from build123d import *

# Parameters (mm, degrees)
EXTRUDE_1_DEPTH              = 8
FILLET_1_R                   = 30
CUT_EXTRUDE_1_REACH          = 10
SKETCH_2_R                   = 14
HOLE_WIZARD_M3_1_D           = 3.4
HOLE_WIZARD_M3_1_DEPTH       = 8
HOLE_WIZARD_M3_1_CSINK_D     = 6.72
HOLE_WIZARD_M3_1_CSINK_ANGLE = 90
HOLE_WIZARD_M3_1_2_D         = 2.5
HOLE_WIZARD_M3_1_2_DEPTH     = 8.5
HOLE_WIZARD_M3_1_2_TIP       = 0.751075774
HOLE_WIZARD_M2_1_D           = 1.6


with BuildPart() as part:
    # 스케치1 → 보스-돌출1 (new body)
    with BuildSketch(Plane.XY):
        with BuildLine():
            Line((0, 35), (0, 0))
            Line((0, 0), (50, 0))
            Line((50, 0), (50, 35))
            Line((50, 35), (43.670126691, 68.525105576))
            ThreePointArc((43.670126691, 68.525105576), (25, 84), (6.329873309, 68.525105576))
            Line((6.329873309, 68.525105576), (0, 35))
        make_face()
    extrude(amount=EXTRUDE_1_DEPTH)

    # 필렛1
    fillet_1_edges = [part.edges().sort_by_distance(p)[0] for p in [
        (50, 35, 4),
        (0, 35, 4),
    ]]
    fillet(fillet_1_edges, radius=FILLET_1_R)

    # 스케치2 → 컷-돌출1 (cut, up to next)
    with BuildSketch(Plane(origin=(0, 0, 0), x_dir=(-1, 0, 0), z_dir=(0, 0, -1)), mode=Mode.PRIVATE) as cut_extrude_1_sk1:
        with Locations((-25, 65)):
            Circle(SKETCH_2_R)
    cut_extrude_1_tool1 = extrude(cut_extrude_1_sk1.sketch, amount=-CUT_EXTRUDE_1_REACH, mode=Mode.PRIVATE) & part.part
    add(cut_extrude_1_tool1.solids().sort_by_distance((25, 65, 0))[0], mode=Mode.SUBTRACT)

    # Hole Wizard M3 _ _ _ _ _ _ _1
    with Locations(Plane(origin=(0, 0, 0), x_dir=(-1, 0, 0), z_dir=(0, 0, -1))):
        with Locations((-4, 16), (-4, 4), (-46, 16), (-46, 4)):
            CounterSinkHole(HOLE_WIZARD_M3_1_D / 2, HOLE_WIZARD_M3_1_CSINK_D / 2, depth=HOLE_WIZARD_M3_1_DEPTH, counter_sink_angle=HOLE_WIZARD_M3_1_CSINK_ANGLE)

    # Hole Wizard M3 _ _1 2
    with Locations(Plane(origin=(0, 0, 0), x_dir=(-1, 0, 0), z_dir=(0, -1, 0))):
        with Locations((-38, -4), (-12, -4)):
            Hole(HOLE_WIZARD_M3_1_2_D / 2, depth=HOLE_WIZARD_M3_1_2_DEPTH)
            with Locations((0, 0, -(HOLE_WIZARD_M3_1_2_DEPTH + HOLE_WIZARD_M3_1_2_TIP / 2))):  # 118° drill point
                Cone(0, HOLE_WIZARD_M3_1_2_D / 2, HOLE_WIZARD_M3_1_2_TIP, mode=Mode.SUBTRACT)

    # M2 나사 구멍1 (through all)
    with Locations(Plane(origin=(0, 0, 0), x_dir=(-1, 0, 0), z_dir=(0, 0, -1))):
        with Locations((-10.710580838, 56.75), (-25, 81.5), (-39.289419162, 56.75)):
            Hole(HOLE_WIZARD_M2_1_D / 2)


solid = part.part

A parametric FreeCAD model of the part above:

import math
import FreeCAD as App
import Part
import Sketcher


def edges_at(feature, points):
    """Names of the edges that pass closest to the given points."""
    edges = feature.Shape.Edges
    near = lambda p: min(range(len(edges)), key=lambda i: edges[i].distToShape(Part.Vertex(*p))[0])
    return sorted({f"Edge{near(p) + 1}" for p in points})

doc = App.newDocument("Part")
body = doc.addObject("PartDesign::Body", "Body")

# Sketch on XY plane
sketch1 = body.newObject("Sketcher::SketchObject", "Sketch")
sketch1.AttachmentSupport = (doc.getObject("XY_Plane"), [""])
sketch1.MapMode = "FlatFace"
sketch1.addGeometry([
    Part.LineSegment(App.Vector(0, 35, 0), App.Vector(0, 0, 0)),  # 0
    Part.LineSegment(App.Vector(0, 0, 0), App.Vector(50, 0, 0)),  # 1
    Part.LineSegment(App.Vector(50, 0, 0), App.Vector(50, 35, 0)),  # 2
    Part.LineSegment(App.Vector(50, 35, 0), App.Vector(44, 69, 0)),  # 3
    Part.ArcOfCircle(Part.Circle(App.Vector(25, 65, 0), App.Vector(0, 0, 1), 19), math.radians(11), math.radians(169)),  # 4
    Part.LineSegment(App.Vector(6, 69, 0), App.Vector(0, 35, 0)),  # 5
], False)
sketch1.addConstraint([
    Sketcher.Constraint("Coincident", 0, 2, 1, 1),
    Sketcher.Constraint("Coincident", 1, 2, 2, 1),
    Sketcher.Constraint("Coincident", 2, 2, 3, 1),
    Sketcher.Constraint("Tangent", 3, 2, 4, 1),
    Sketcher.Constraint("Tangent", 4, 2, 5, 1),
    Sketcher.Constraint("Coincident", 5, 2, 0, 1),
    Sketcher.Constraint("Vertical", 0),
    Sketcher.Constraint("Horizontal", 1),
    Sketcher.Constraint("Vertical", 2),
    Sketcher.Constraint("Coincident", 0, 2, -1, 1),
    Sketcher.Constraint("Horizontal", 3, 2, 4, 2),
    Sketcher.Constraint("Horizontal", 2, 2, 5, 2),
    Sketcher.Constraint("Radius", 4, 19.0),
    Sketcher.Constraint("DistanceX", 1, 1, 1, 2, 50.0),
    Sketcher.Constraint("DistanceY", 0, 2, 0, 1, 35.0),
    Sketcher.Constraint("DistanceY", -1, 1, 4, 3, 65.0),
])
pad1 = body.newObject("PartDesign::Pad", "Pad")
pad1.Profile = sketch1
pad1.Length = 8
doc.recompute()

fillet = body.newObject("PartDesign::Fillet", "Fillet")
fillet.Base = (pad1, edges_at(pad1, [(50, 35, 4), (0, 35, 4)]))
fillet.Radius = 30

# Sketch on XY plane
sketch2 = body.newObject("Sketcher::SketchObject", "Sketch001")
sketch2.AttachmentSupport = (doc.getObject("XY_Plane"), [""])
sketch2.MapMode = "FlatFace"
sketch2.addGeometry(Part.Circle(App.Vector(25, 65, 0), App.Vector(0, 0, 1), 14), False)
sketch2.addConstraint([
    Sketcher.Constraint("Diameter", 0, 28.0),
    Sketcher.Constraint("DistanceX", -1, 1, 0, 3, 25.0),
    Sketcher.Constraint("DistanceY", -1, 1, 0, 3, 65.0),
])
pocket1 = body.newObject("PartDesign::Pocket", "Pocket")
pocket1.Profile = sketch2
pocket1.Type = "UpToFirst"
pocket1.Reversed = True

# Sketch on XY plane
sketch3 = body.newObject("Sketcher::SketchObject", "Sketch002")
sketch3.AttachmentSupport = (doc.getObject("XY_Plane"), [""])
sketch3.MapMode = "FlatFace"
sketch3.addGeometry([
    Part.Circle(App.Vector(4, 16, 0), App.Vector(0, 0, 1), 1.7),
    Part.Circle(App.Vector(4, 4, 0), App.Vector(0, 0, 1), 1.7),
    Part.Circle(App.Vector(46, 16, 0), App.Vector(0, 0, 1), 1.7),
    Part.Circle(App.Vector(46, 4, 0), App.Vector(0, 0, 1), 1.7),
], False)
sketch3.addConstraint([
    Sketcher.Constraint("Equal", 0, 1),
    Sketcher.Constraint("Equal", 1, 2),
    Sketcher.Constraint("Equal", 2, 3),
    Sketcher.Constraint("Horizontal", 0, 3, 2, 3),
    Sketcher.Constraint("Horizontal", 1, 3, 3, 3),
    Sketcher.Constraint("Vertical", 0, 3, 1, 3),
    Sketcher.Constraint("Vertical", 2, 3, 3, 3),
    Sketcher.Constraint("Diameter", 0, 3.4),
    Sketcher.Constraint("DistanceX", -1, 1, 0, 3, 4.0),
    Sketcher.Constraint("DistanceY", -1, 1, 0, 3, 16.0),
    Sketcher.Constraint("DistanceY", -1, 1, 1, 3, 4.0),
    Sketcher.Constraint("DistanceX", -1, 1, 2, 3, 46.0),
])
doc.recompute()
hole = body.newObject("PartDesign::Hole", "Hole")
hole.Profile = sketch3
hole.ThreadType = "None"
hole.Diameter = 3.4
hole.DepthType = "Dimension"
hole.Depth = 8
hole.DrillPoint = "Flat"
hole.HoleCutType = "Countersink"
hole.HoleCutDiameter = 6.72
hole.HoleCutCountersinkAngle = 90
hole.Reversed = True

# Sketch on XZ plane
sketch4 = body.newObject("Sketcher::SketchObject", "Sketch003")
sketch4.AttachmentSupport = (doc.getObject("XZ_Plane"), [""])
sketch4.MapMode = "FlatFace"
sketch4.addGeometry([
    Part.Circle(App.Vector(38, 4, 0), App.Vector(0, 0, 1), 1.2),
    Part.Circle(App.Vector(12, 4, 0), App.Vector(0, 0, 1), 1.2),
], False)
sketch4.addConstraint([
    Sketcher.Constraint("Equal", 0, 1),
    Sketcher.Constraint("Horizontal", 0, 3, 1, 3),
    Sketcher.Constraint("Diameter", 0, 2.5),
    Sketcher.Constraint("DistanceX", -1, 1, 0, 3, 38.0),
    Sketcher.Constraint("DistanceY", -1, 1, 0, 3, 4.0),
    Sketcher.Constraint("DistanceX", -1, 1, 1, 3, 12.0),
])
doc.recompute()
hole2 = body.newObject("PartDesign::Hole", "Hole001")
hole2.Profile = sketch4
hole2.ThreadType = "None"
hole2.Diameter = 2.5
hole2.DepthType = "Dimension"
hole2.Depth = 8.5
hole2.DrillPoint = "Angled"
hole2.DrillPointAngle = 118

# Sketch on XY plane
sketch5 = body.newObject("Sketcher::SketchObject", "Sketch004")
sketch5.AttachmentSupport = (doc.getObject("XY_Plane"), [""])
sketch5.MapMode = "FlatFace"
sketch5.addGeometry([
    Part.Circle(App.Vector(10.7, 56.8, 0), App.Vector(0, 0, 1), 0.8),
    Part.Circle(App.Vector(25, 81.5, 0), App.Vector(0, 0, 1), 0.8),
    Part.Circle(App.Vector(39.3, 56.8, 0), App.Vector(0, 0, 1), 0.8),
], False)
sketch5.addConstraint([
    Sketcher.Constraint("Equal", 0, 1),
    Sketcher.Constraint("Equal", 1, 2),
    Sketcher.Constraint("Horizontal", 0, 3, 2, 3),
    Sketcher.Constraint("Diameter", 0, 1.6),
    Sketcher.Constraint("DistanceX", -1, 1, 1, 3, 25.0),
    Sketcher.Constraint("DistanceY", -1, 1, 1, 3, 81.5),
    Sketcher.Constraint("DistanceY", -1, 1, 0, 3, 56.75),
    Sketcher.Constraint("DistanceX", -1, 1, 0, 3, 10.710581),
    Sketcher.Constraint("DistanceX", -1, 1, 2, 3, 39.289419),
])
doc.recompute()
hole3 = body.newObject("PartDesign::Hole", "Hole002")
hole3.Profile = sketch5
hole3.ThreadType = "None"
hole3.Diameter = 1.6
hole3.DepthType = "ThroughAll"
hole3.Reversed = True

doc.recompute()
